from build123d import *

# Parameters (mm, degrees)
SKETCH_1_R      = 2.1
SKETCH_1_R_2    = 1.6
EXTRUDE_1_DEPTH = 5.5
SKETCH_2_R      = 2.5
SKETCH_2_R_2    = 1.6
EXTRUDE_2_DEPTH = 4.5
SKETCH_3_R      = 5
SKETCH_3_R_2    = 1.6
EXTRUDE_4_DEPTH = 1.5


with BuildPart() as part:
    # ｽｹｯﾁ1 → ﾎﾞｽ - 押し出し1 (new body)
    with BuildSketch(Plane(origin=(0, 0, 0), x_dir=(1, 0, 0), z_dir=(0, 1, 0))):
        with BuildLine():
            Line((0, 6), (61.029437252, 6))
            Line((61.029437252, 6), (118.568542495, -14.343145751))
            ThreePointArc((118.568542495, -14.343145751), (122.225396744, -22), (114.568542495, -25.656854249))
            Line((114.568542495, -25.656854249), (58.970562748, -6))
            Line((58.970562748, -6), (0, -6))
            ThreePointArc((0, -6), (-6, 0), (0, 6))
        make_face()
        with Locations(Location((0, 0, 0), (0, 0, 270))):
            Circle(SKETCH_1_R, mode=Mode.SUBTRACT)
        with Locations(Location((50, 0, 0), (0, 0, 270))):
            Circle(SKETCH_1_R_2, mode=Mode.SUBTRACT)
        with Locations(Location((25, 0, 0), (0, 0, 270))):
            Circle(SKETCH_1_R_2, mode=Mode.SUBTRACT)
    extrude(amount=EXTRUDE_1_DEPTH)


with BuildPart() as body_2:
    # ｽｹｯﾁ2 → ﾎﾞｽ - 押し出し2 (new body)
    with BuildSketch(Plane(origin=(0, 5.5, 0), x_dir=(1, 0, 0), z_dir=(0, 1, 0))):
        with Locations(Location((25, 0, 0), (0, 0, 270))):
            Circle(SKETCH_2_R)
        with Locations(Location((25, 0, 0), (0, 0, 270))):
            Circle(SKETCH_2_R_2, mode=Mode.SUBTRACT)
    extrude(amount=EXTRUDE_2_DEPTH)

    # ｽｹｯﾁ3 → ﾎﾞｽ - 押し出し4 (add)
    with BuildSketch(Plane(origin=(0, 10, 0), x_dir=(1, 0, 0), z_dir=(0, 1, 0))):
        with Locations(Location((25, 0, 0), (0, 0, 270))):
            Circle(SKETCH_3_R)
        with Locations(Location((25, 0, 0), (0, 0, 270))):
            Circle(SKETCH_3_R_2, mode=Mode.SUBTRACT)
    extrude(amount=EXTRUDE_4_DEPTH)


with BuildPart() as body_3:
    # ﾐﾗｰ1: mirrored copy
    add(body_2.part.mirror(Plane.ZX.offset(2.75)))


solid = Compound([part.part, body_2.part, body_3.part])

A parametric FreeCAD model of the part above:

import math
import FreeCAD as App
import Part
import Sketcher
from FreeCAD import Vector

doc = App.newDocument("Part")
body = doc.addObject("PartDesign::Body", "Body")

sketch1 = body.newObject("Sketcher::SketchObject", "Sketch")
sketch1.AttachmentSupport = (doc.getObject("XZ_Plane"), [""])
sketch1.MapMode = "FlatFace"
sketch1.addGeometry([
    Part.LineSegment(Vector(61, -6, 0), Vector(0, -6, 0)),
    Part.ArcOfCircle(Part.Circle(Vector(0, 0, 0), Vector(0, 0, 1), 6), math.radians(90), math.radians(270)),
    Part.LineSegment(Vector(0, 6, 0), Vector(59, 6, 0)),
    Part.LineSegment(Vector(59, 6, 0), Vector(114.6, 25.7, 0)),
    Part.ArcOfCircle(Part.Circle(Vector(116.6, 20, 0), Vector(0, 0, 1), 6), math.radians(-71), math.radians(109)),
    Part.LineSegment(Vector(118.6, 14.3, 0), Vector(61, -6, 0)),
    Part.Circle(Vector(50, 0, 0), Vector(0, 0, 1), 1.6),
    Part.Circle(Vector(25, 0, 0), Vector(0, 0, 1), 1.6),
    Part.Circle(Vector(0, 0, 0), Vector(0, 0, 1), 2.1),
], False)
sketch1.addConstraint([
    Sketcher.Constraint("Tangent", 0, 2, 1, 2),
    Sketcher.Constraint("Tangent", 1, 1, 2, 1),
    Sketcher.Constraint("Coincident", 2, 2, 3, 1),
    Sketcher.Constraint("Tangent", 3, 2, 4, 2),
    Sketcher.Constraint("Tangent", 4, 1, 5, 1),
    Sketcher.Constraint("Coincident", 5, 2, 0, 1),
    Sketcher.Constraint("Horizontal", 0),
    Sketcher.Constraint("Horizontal", 2),
    Sketcher.Constraint("Coincident", 1, 3, -1, 1),
    Sketcher.Constraint("Coincident", 8, 3, -1, 1),
    Sketcher.Constraint("Equal", 1, 4),
    Sketcher.Constraint("Equal", 6, 7),
    Sketcher.Constraint("PointOnObject", 6, 3, -1),
    Sketcher.Constraint("PointOnObject", 7, 3, -1),
    Sketcher.Constraint("Parallel", 3, 5),
    Sketcher.Constraint("Radius", 1, 6.0),
    Sketcher.Constraint("Diameter", 6, 3.2),
    Sketcher.Constraint("Diameter", 8, 4.2),
    Sketcher.Constraint("DistanceY", -1, 1, 4, 3, 20.0),
    Sketcher.Constraint("DistanceX", -1, 1, 6, 3, 50.0),
    Sketcher.Constraint("DistanceX", -1, 1, 7, 3, 25.0),
    Sketcher.Constraint("DistanceX", 3, 2, 4, 3, 2.0),
    Sketcher.Constraint("DistanceX", 0, 2, 0, 1, 61.029437),
])
pad1 = body.newObject("PartDesign::Pad", "Pad")
pad1.Profile = sketch1
pad1.Length = 5.5
pad1.Reversed = True
body2 = doc.addObject("PartDesign::Body", "Body001")

sketch2 = body2.newObject("Sketcher::SketchObject", "Sketch001")
sketch2.AttachmentSupport = (doc.getObject("XZ_Plane001"), [""])
sketch2.MapMode = "FlatFace"
sketch2.AttachmentOffset = App.Placement(Vector(0, 0, -5.5), App.Rotation())
sketch2.addGeometry([
    Part.Circle(Vector(25, 0, 0), Vector(0, 0, 1), 2.5),
    Part.Circle(Vector(25, 0, 0), Vector(0, 0, 1), 1.6),
], False)
sketch2.addConstraint([
    Sketcher.Constraint("Coincident", 1, 3, 0, 3),
    Sketcher.Constraint("PointOnObject", 0, 3, -1),
    Sketcher.Constraint("Diameter", 0, 5.0),
    Sketcher.Constraint("Diameter", 1, 3.2),
    Sketcher.Constraint("DistanceX", -1, 1, 0, 3, 25.0),
])
pad2 = body2.newObject("PartDesign::Pad", "Pad001")
pad2.Profile = sketch2
pad2.Length = 4.5
pad2.Reversed = True

sketch3 = body2.newObject("Sketcher::SketchObject", "Sketch002")
sketch3.AttachmentSupport = (doc.getObject("XZ_Plane001"), [""])
sketch3.MapMode = "FlatFace"
sketch3.AttachmentOffset = App.Placement(Vector(0, 0, -10), App.Rotation())
sketch3.addGeometry([
    Part.Circle(Vector(25, 0, 0), Vector(0, 0, 1), 5),
    Part.Circle(Vector(25, 0, 0), Vector(0, 0, 1), 1.6),
], False)
sketch3.addConstraint([
    Sketcher.Constraint("Coincident", 1, 3, 0, 3),
    Sketcher.Constraint("PointOnObject", 0, 3, -1),
    Sketcher.Constraint("Diameter", 0, 10.0),
    Sketcher.Constraint("Diameter", 1, 3.2),
    Sketcher.Constraint("DistanceX", -1, 1, 0, 3, 25.0),
])
pad3 = body2.newObject("PartDesign::Pad", "Pad002")
pad3.Profile = sketch3
pad3.Length = 1.5
pad3.Reversed = True
body3 = doc.addObject("PartDesign::Body", "Body002")
doc.recompute()

mirroring = doc.addObject("Part::Mirroring", "Mirroring")
mirroring.Source = body2
mirroring.Base = Vector(0, 2.75, 0)
mirroring.Normal = Vector(0, 1, 0)
body3.BaseFeature = mirroring
doc.recompute()
mirroring.Visibility = False

doc.recompute()
